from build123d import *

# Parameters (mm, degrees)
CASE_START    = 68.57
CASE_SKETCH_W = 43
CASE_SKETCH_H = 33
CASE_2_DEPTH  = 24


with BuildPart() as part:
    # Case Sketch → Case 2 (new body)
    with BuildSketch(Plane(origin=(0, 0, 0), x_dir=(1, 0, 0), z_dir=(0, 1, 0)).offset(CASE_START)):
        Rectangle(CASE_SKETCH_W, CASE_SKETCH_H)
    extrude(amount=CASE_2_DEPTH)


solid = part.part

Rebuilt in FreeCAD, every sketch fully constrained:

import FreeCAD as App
import Part
import Sketcher
from FreeCAD import Vector

doc = App.newDocument("Part")
body = doc.addObject("PartDesign::Body", "Body")

sketch1 = body.newObject("Sketcher::SketchObject", "Sketch")
sketch1.AttachmentSupport = (doc.getObject("XZ_Plane"), [""])
sketch1.MapMode = "FlatFace"
sketch1.AttachmentOffset = App.Placement(Vector(0, 0, -68.57), App.Rotation())
sketch1.addGeometry([
    Part.LineSegment(Vector(-22, -16, 0), Vector(-22, 16, 0)),
    Part.LineSegment(Vector(-22, 16, 0), Vector(22, 16, 0)),
    Part.LineSegment(Vector(22, 16, 0), Vector(22, -16, 0)),
    Part.LineSegment(Vector(22, -16, 0), Vector(-22, -16, 0)),
], False)
sketch1.addConstraint([
    Sketcher.Constraint("Coincident", 0, 2, 1, 1),
    Sketcher.Constraint("Coincident", 1, 2, 2, 1),
    Sketcher.Constraint("Coincident", 2, 2, 3, 1),
    Sketcher.Constraint("Coincident", 3, 2, 0, 1),
    Sketcher.Constraint("Vertical", 0),
    Sketcher.Constraint("Horizontal", 1),
    Sketcher.Constraint("Vertical", 2),
    Sketcher.Constraint("Horizontal", 3),
    Sketcher.Constraint("Symmetric", 0, 2, 2, 2, -1, 1),
    Sketcher.Constraint("DistanceX", 1, 1, 1, 2, 43.0),
    Sketcher.Constraint("DistanceY", 0, 1, 0, 2, 33.0),
])
pad1 = body.newObject("PartDesign::Pad", "Pad")
pad1.Profile = sketch1
pad1.Length = 24
pad1.Reversed = True

doc.recompute()
